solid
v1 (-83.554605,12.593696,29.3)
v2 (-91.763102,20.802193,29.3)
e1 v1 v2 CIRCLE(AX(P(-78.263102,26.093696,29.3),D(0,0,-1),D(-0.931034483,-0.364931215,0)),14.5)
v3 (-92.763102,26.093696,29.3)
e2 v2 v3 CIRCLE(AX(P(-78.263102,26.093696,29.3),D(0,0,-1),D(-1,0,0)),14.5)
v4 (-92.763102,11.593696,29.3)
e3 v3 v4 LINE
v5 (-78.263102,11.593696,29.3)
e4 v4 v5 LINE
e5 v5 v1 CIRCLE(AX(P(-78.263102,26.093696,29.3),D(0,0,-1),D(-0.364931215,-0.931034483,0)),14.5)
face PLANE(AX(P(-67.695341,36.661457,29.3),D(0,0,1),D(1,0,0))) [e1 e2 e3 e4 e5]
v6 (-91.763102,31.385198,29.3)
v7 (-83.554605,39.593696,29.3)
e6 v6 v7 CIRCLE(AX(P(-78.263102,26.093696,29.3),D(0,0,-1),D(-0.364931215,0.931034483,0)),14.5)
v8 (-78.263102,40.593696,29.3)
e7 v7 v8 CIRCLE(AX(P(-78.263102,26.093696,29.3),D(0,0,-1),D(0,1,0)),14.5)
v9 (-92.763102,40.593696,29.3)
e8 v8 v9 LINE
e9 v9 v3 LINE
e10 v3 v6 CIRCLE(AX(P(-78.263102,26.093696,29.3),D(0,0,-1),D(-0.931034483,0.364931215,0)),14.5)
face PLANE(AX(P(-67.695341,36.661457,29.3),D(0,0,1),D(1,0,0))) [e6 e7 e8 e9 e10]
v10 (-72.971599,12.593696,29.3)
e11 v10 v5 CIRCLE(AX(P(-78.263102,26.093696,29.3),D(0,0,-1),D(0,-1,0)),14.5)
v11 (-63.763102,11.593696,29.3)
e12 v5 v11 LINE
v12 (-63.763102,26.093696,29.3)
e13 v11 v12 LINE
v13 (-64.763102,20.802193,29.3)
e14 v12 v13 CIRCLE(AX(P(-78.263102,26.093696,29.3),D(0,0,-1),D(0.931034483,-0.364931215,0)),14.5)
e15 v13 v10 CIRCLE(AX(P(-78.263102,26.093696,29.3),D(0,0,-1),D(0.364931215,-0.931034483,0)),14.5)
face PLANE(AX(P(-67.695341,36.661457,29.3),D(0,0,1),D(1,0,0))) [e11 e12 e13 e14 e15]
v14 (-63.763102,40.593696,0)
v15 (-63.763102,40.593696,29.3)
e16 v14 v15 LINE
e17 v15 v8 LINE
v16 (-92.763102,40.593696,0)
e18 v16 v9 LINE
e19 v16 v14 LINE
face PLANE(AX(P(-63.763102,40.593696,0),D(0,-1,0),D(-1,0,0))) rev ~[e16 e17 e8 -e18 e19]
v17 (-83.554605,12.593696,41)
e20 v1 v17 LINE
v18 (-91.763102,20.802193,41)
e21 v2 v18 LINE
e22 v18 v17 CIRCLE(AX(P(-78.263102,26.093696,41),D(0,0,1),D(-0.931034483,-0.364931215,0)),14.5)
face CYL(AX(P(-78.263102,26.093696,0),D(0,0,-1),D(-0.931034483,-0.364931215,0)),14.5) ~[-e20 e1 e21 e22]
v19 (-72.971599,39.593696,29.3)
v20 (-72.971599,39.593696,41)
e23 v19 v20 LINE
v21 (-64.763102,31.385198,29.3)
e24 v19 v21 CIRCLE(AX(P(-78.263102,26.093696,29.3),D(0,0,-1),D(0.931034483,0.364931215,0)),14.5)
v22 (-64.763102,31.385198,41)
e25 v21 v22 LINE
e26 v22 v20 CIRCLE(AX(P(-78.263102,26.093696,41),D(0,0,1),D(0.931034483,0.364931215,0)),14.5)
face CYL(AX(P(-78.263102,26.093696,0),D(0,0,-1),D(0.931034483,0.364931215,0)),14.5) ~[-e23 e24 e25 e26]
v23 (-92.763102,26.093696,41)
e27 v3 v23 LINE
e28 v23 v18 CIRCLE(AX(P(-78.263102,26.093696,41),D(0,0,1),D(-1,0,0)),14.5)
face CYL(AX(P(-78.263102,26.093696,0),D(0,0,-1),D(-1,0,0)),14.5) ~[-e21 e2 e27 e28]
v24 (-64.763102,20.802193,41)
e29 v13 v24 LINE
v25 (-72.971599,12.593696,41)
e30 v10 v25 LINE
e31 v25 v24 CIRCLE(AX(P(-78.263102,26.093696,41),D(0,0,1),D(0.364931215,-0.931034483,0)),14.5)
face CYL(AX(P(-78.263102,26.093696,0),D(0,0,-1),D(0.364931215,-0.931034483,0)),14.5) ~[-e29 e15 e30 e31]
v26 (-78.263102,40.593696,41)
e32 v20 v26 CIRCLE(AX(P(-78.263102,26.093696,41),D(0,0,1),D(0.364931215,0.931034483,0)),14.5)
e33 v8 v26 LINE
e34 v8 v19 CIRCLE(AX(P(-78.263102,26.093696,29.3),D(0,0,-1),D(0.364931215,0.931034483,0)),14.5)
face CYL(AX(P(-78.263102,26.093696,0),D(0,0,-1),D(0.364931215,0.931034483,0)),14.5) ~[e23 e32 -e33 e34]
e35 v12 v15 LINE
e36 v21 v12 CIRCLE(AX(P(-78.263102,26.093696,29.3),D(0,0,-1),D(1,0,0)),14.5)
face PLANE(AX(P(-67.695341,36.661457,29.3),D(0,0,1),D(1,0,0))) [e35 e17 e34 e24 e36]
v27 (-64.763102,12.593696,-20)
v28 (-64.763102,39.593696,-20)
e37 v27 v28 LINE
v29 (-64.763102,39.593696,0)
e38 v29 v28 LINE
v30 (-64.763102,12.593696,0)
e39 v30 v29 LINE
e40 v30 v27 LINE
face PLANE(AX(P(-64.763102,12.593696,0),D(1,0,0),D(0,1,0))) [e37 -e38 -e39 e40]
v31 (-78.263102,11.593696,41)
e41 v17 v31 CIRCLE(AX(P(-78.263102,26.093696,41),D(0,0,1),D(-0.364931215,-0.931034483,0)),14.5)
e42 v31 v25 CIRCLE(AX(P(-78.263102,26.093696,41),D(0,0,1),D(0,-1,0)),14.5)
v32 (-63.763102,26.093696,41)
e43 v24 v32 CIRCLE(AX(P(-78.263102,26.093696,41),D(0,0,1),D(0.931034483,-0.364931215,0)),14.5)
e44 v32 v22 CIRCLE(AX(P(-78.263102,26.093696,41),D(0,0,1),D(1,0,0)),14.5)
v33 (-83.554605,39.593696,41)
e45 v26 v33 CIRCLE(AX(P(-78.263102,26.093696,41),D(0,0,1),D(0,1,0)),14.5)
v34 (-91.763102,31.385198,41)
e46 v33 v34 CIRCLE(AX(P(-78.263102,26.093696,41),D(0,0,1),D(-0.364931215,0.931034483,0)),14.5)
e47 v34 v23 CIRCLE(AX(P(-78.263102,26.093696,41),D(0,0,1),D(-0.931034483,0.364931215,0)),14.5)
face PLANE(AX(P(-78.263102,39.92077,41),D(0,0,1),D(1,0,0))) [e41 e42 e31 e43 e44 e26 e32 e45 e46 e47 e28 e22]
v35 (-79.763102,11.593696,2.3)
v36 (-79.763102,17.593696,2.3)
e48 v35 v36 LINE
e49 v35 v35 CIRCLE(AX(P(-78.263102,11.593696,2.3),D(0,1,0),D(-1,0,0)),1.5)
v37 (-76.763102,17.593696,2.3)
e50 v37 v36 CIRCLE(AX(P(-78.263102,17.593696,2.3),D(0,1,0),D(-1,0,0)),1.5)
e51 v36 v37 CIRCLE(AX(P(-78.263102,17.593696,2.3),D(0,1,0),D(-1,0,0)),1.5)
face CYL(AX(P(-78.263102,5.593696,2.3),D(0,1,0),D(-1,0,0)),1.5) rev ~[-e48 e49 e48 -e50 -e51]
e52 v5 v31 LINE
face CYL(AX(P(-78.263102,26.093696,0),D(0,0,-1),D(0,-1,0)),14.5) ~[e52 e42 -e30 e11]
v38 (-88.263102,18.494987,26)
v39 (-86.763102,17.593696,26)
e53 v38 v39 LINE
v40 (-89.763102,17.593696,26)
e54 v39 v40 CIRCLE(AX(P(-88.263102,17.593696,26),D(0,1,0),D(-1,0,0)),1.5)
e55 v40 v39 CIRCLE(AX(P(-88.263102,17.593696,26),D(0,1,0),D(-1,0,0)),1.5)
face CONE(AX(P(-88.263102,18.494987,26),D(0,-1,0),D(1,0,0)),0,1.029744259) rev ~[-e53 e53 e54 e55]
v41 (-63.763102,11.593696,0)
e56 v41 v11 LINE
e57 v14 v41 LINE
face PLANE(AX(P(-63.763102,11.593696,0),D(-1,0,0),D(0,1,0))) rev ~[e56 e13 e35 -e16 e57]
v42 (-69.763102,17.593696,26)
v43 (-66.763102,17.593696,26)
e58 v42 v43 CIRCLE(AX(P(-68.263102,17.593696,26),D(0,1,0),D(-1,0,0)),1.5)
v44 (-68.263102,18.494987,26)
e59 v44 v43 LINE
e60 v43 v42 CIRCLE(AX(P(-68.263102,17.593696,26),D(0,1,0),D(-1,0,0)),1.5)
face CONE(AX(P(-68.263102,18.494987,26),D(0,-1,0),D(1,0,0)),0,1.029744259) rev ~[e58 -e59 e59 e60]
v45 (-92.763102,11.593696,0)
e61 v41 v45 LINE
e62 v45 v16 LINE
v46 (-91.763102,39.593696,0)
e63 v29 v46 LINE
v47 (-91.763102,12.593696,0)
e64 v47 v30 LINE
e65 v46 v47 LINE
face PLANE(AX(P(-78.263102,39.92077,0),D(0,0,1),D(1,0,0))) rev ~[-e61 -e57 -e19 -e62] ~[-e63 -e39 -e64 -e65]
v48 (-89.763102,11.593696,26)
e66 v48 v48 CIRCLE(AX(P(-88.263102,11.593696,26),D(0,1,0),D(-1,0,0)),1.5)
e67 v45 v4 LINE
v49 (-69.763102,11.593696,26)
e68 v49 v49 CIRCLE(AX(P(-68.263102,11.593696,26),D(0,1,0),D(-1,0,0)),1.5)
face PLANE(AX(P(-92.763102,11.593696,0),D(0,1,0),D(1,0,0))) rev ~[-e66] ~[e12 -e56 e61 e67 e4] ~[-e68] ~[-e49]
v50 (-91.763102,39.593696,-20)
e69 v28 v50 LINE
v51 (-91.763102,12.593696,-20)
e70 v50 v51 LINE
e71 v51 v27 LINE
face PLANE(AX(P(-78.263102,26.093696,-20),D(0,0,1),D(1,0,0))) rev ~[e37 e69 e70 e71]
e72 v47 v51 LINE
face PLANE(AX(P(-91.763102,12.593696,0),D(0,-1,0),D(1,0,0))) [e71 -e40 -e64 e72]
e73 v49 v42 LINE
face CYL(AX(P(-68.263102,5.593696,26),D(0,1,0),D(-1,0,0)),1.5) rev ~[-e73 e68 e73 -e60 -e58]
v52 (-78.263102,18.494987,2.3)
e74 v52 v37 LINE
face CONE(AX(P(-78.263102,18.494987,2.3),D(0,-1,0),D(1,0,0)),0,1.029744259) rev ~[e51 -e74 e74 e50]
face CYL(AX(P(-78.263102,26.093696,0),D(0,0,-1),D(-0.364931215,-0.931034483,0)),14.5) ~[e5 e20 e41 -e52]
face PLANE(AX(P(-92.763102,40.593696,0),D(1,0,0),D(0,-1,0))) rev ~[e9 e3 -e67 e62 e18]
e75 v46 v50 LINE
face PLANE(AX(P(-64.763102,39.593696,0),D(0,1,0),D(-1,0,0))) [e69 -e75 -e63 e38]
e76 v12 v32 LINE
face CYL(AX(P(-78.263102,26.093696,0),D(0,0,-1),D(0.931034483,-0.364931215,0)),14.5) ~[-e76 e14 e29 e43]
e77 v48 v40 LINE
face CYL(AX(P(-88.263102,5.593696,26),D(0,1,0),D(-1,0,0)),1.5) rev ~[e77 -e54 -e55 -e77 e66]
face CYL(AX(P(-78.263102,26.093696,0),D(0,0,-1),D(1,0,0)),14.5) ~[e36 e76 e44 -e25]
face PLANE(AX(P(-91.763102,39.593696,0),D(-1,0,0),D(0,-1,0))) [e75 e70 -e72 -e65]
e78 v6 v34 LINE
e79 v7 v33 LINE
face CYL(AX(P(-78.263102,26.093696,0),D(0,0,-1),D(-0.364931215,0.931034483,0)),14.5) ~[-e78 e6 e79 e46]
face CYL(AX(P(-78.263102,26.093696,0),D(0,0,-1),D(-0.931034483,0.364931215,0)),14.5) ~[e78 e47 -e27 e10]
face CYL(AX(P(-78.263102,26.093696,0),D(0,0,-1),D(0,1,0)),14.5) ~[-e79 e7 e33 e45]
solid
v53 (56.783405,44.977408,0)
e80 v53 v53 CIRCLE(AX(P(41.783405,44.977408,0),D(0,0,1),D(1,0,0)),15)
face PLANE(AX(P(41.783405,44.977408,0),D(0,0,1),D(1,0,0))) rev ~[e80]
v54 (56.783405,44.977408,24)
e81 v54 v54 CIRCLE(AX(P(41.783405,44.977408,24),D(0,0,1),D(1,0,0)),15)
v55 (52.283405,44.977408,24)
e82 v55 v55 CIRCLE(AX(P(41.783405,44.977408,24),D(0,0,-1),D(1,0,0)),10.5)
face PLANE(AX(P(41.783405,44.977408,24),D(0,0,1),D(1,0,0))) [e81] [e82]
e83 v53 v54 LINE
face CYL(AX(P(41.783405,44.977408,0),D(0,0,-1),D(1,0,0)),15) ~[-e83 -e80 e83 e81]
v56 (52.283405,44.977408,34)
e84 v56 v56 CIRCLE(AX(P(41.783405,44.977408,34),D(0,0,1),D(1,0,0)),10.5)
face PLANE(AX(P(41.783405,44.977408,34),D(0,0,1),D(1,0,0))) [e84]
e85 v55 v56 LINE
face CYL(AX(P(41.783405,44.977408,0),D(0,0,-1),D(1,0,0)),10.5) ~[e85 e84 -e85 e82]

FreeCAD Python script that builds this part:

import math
import FreeCAD as App
import Part
import Sketcher
from FreeCAD import Vector


def add_polygon(sketch, points):
    """Adds a closed chain of lines whose ends are joined by coincident constraints."""
    first, n = sketch.GeometryCount, len(points)
    for a, b in zip(points, points[1:] + points[:1]):
        sketch.addGeometry(Part.LineSegment(App.Vector(*a, 0), App.Vector(*b, 0)), False)
    for i in range(n):
        sketch.addConstraint(Sketcher.Constraint("Coincident", first + i, 2, first + (i + 1) % n, 1))

doc = App.newDocument("Part")
params = doc.addObject("Spreadsheet::Sheet", "Params")
for row, (alias, value) in enumerate([
    ("sketch1_width", "29 mm"),
    ("pad1_length", "29.3 mm"),
    ("sketch2_radius", "14.5 mm"),
    ("pad2_length", "41 mm"),
    ("sketch3_width", "27 mm"),
    ("pad3_length", "20 mm"),
    ("sketch4_diameter", "3 mm"),
    ("hole_diameter", "3 mm"),
    ("hole_depth", "6 mm"),
    ("sketch5_diameter", "30 mm"),
    ("pad4_length", "24 mm"),
    ("sketch6_diameter", "21 mm"),
    ("pad5_length", "34 mm"),
], start=1):
    params.set(f"A{row}", alias)
    params.set(f"B{row}", "=" + value)
    params.setAlias(f"B{row}", alias)

body = doc.addObject("PartDesign::Body", "Body")

# Sketch on XY plane
sketch1 = body.newObject("Sketcher::SketchObject", "Sketch")
sketch1.AttachmentSupport = (doc.getObject("XY_Plane"), [""])
sketch1.MapMode = "FlatFace"
add_polygon(sketch1, [(-93, 41), (-93, 12), (-64, 12), (-64, 41)])  # lines 0-3
sketch1.addConstraint([
    Sketcher.Constraint("Vertical", 0),
    Sketcher.Constraint("Horizontal", 1),
    Sketcher.Constraint("Vertical", 2),
    Sketcher.Constraint("Horizontal", 3),
    Sketcher.Constraint("Equal", 3, 0),
    Sketcher.Constraint("DistanceX", 1, 1, 1, 2, 29.0),
    Sketcher.Constraint("DistanceX", 0, 2, -1, 1, 92.763102),
    Sketcher.Constraint("DistanceY", -1, 1, 0, 2, 11.593696),
])
sketch1.setExpression("Constraints[9]", "Params.sketch1_width")
pad1 = body.newObject("PartDesign::Pad", "Pad")
pad1.Profile = sketch1
pad1.setExpression("Length", "Params.pad1_length")

# Sketch on XY plane
sketch2 = body.newObject("Sketcher::SketchObject", "Sketch001")
sketch2.AttachmentSupport = (doc.getObject("XY_Plane"), [""])
sketch2.MapMode = "FlatFace"
sketch2.addGeometry([
    Part.ArcOfCircle(Part.Circle(Vector(-78, 26, 0), Vector(0, 0, 1), 14), math.radians(69), math.radians(90)),  # 0
    Part.ArcOfCircle(Part.Circle(Vector(-78, 26, 0), Vector(0, 0, 1), 14), math.radians(90), math.radians(111)),  # 1
    Part.ArcOfCircle(Part.Circle(Vector(-78, 26, 0), Vector(0, 0, 1), 14), math.radians(111), math.radians(159)),  # 2
    Part.ArcOfCircle(Part.Circle(Vector(-78, 26, 0), Vector(0, 0, 1), 14), math.radians(159), math.radians(180)),  # 3
    Part.ArcOfCircle(Part.Circle(Vector(-78, 26, 0), Vector(0, 0, 1), 14), math.radians(180), math.radians(201)),  # 4
    Part.ArcOfCircle(Part.Circle(Vector(-78, 26, 0), Vector(0, 0, 1), 14), math.radians(-159), math.radians(-111)),  # 5
    Part.ArcOfCircle(Part.Circle(Vector(-78, 26, 0), Vector(0, 0, 1), 15), math.radians(-111), math.radians(-90)),  # 6
    Part.ArcOfCircle(Part.Circle(Vector(-78, 26, 0), Vector(0, 0, 1), 15), math.radians(-90), math.radians(-69)),  # 7
    Part.ArcOfCircle(Part.Circle(Vector(-78, 26, 0), Vector(0, 0, 1), 14), math.radians(-69), math.radians(-21)),  # 8
    Part.ArcOfCircle(Part.Circle(Vector(-78, 26, 0), Vector(0, 0, 1), 15), math.radians(-21), math.radians(0)),  # 9
    Part.ArcOfCircle(Part.Circle(Vector(-78, 26, 0), Vector(0, 0, 1), 15), math.radians(0), math.radians(21)),  # 10
    Part.ArcOfCircle(Part.Circle(Vector(-78, 26, 0), Vector(0, 0, 1), 14), math.radians(21), math.radians(69)),  # 11
], False)
sketch2.addConstraint([
    Sketcher.Constraint("Tangent", 0, 2, 1, 1),
    Sketcher.Constraint("Tangent", 1, 2, 2, 1),
    Sketcher.Constraint("Tangent", 2, 2, 3, 1),
    Sketcher.Constraint("Tangent", 3, 2, 4, 1),
    Sketcher.Constraint("Tangent", 4, 2, 5, 1),
    Sketcher.Constraint("Tangent", 5, 2, 6, 1),
    Sketcher.Constraint("Tangent", 6, 2, 7, 1),
    Sketcher.Constraint("Tangent", 7, 2, 8, 1),
    Sketcher.Constraint("Tangent", 8, 2, 9, 1),
    Sketcher.Constraint("Tangent", 9, 2, 10, 1),
    Sketcher.Constraint("Tangent", 10, 2, 11, 1),
    Sketcher.Constraint("Tangent", 11, 2, 0, 1),
    Sketcher.Constraint("Coincident", 2, 3, 0, 3),
    Sketcher.Constraint("Coincident", 4, 3, 0, 3),
    Sketcher.Constraint("Coincident", 6, 3, 0, 3),
    Sketcher.Constraint("Coincident", 8, 3, 0, 3),
    Sketcher.Constraint("Equal", 8, 9),
    Sketcher.Constraint("Horizontal", 11, 3, 3, 2),
    Sketcher.Constraint("Horizontal", 5, 2, 7, 2),
    Sketcher.Constraint("Horizontal", 4, 2, 8, 2),
    Sketcher.Constraint("Horizontal", 3, 2, 9, 2),
    Sketcher.Constraint("Horizontal", 2, 2, 10, 2),
    Sketcher.Constraint("Horizontal", 1, 2, 11, 2),
    Sketcher.Constraint("Vertical", 11, 3, 0, 2),
    Sketcher.Constraint("Vertical", 2, 2, 4, 2),
    Sketcher.Constraint("Vertical", 1, 2, 5, 2),
    Sketcher.Constraint("Vertical", 0, 2, 6, 2),
    Sketcher.Constraint("Radius", 0, 14.5),
    Sketcher.Constraint("DistanceY", 1, 2, 0, 2, 1.0),
    Sketcher.Constraint("DistanceX", 3, 2, 2, 2, 1.0),
    Sketcher.Constraint("DistanceX", 0, 3, -1, 1, 78.263102),
    Sketcher.Constraint("DistanceY", -1, 1, 2, 2, 31.385198),
])
sketch2.setExpression("Constraints[27]", "Params.sketch2_radius")
pad2 = body.newObject("PartDesign::Pad", "Pad001")
pad2.Profile = sketch2
pad2.setExpression("Length", "Params.pad2_length")

# Sketch on XY plane
sketch3 = body.newObject("Sketcher::SketchObject", "Sketch002")
sketch3.AttachmentSupport = (doc.getObject("XY_Plane"), [""])
sketch3.MapMode = "FlatFace"
add_polygon(sketch3, [(-65, 40), (-92, 40), (-92, 13), (-65, 13)])  # lines 0-3
sketch3.addConstraint([
    Sketcher.Constraint("Horizontal", 0),
    Sketcher.Constraint("Vertical", 1),
    Sketcher.Constraint("Horizontal", 2),
    Sketcher.Constraint("Vertical", 3),
    Sketcher.Constraint("Equal", 2, 1),
    Sketcher.Constraint("DistanceX", 0, 2, 0, 1, 27.0),
    Sketcher.Constraint("DistanceX", 0, 2, -1, 1, 91.763102),
    Sketcher.Constraint("DistanceY", -1, 1, 0, 2, 39.593696),
])
sketch3.setExpression("Constraints[9]", "Params.sketch3_width")
pad3 = body.newObject("PartDesign::Pad", "Pad002")
pad3.Profile = sketch3
pad3.setExpression("Length", "Params.pad3_length")
pad3.Reversed = True

# Sketch on XZ plane
sketch4 = body.newObject("Sketcher::SketchObject", "Sketch003")
sketch4.AttachmentSupport = (doc.getObject("XZ_Plane"), [""])
sketch4.MapMode = "FlatFace"
sketch4.AttachmentOffset = App.Placement(Vector(0, 0, -11.593696), App.Rotation())
sketch4.addGeometry([
    Part.Circle(Vector(-68.3, 26, 0), Vector(0, 0, 1), 1.5),
    Part.Circle(Vector(-78.3, 2.3, 0), Vector(0, 0, 1), 1.5),
    Part.Circle(Vector(-88.3, 26, 0), Vector(0, 0, 1), 1.5),
], False)
sketch4.addConstraint([
    Sketcher.Constraint("Equal", 0, 1),
    Sketcher.Constraint("Equal", 1, 2),
    Sketcher.Constraint("Horizontal", 0, 3, 2, 3),
    Sketcher.Constraint("Diameter", 0, 3.0),
    Sketcher.Constraint("DistanceY", -1, 1, 0, 3, 26.0),
    Sketcher.Constraint("DistanceX", 1, 3, 0, 3, 10.0),
    Sketcher.Constraint("DistanceX", 2, 3, 0, 3, 20.0),
    Sketcher.Constraint("DistanceY", -1, 1, 1, 3, 2.3),
    Sketcher.Constraint("DistanceX", 0, 3, -1, 1, 68.263102),
])
sketch4.setExpression("Constraints[3]", "Params.sketch4_diameter")
doc.recompute()
hole = body.newObject("PartDesign::Hole", "Hole")
hole.Profile = sketch4
hole.ThreadType = "None"
hole.setExpression("Diameter", "Params.hole_diameter")
hole.DepthType = "Dimension"
hole.setExpression("Depth", "Params.hole_depth")
hole.DrillPoint = "Angled"
hole.DrillPointAngle = 118
body2 = doc.addObject("PartDesign::Body", "Body001")

# Sketch on XY plane
sketch5 = body2.newObject("Sketcher::SketchObject", "Sketch004")
sketch5.AttachmentSupport = (doc.getObject("XY_Plane001"), [""])
sketch5.MapMode = "FlatFace"
sketch5.addGeometry(Part.Circle(Vector(42, 45, 0), Vector(0, 0, 1), 15), False)
sketch5.addConstraint([
    Sketcher.Constraint("Diameter", 0, 30.0),
    Sketcher.Constraint("DistanceX", -1, 1, 0, 3, 41.783405),
    Sketcher.Constraint("DistanceY", -1, 1, 0, 3, 44.977408),
])
sketch5.setExpression("Constraints[0]", "Params.sketch5_diameter")
pad4 = body2.newObject("PartDesign::Pad", "Pad003")
pad4.Profile = sketch5
pad4.setExpression("Length", "Params.pad4_length")

# Sketch on XY plane
sketch6 = body2.newObject("Sketcher::SketchObject", "Sketch005")
sketch6.AttachmentSupport = (doc.getObject("XY_Plane001"), [""])
sketch6.MapMode = "FlatFace"
sketch6.addGeometry(Part.Circle(Vector(42, 45, 0), Vector(0, 0, 1), 10), False)
sketch6.addConstraint([
    Sketcher.Constraint("Diameter", 0, 21.0),
    Sketcher.Constraint("DistanceX", -1, 1, 0, 3, 41.783405),
    Sketcher.Constraint("DistanceY", -1, 1, 0, 3, 44.977408),
])
sketch6.setExpression("Constraints[0]", "Params.sketch6_diameter")
pad5 = body2.newObject("PartDesign::Pad", "Pad004")
pad5.Profile = sketch6
pad5.setExpression("Length", "Params.pad5_length")

doc.recompute()
